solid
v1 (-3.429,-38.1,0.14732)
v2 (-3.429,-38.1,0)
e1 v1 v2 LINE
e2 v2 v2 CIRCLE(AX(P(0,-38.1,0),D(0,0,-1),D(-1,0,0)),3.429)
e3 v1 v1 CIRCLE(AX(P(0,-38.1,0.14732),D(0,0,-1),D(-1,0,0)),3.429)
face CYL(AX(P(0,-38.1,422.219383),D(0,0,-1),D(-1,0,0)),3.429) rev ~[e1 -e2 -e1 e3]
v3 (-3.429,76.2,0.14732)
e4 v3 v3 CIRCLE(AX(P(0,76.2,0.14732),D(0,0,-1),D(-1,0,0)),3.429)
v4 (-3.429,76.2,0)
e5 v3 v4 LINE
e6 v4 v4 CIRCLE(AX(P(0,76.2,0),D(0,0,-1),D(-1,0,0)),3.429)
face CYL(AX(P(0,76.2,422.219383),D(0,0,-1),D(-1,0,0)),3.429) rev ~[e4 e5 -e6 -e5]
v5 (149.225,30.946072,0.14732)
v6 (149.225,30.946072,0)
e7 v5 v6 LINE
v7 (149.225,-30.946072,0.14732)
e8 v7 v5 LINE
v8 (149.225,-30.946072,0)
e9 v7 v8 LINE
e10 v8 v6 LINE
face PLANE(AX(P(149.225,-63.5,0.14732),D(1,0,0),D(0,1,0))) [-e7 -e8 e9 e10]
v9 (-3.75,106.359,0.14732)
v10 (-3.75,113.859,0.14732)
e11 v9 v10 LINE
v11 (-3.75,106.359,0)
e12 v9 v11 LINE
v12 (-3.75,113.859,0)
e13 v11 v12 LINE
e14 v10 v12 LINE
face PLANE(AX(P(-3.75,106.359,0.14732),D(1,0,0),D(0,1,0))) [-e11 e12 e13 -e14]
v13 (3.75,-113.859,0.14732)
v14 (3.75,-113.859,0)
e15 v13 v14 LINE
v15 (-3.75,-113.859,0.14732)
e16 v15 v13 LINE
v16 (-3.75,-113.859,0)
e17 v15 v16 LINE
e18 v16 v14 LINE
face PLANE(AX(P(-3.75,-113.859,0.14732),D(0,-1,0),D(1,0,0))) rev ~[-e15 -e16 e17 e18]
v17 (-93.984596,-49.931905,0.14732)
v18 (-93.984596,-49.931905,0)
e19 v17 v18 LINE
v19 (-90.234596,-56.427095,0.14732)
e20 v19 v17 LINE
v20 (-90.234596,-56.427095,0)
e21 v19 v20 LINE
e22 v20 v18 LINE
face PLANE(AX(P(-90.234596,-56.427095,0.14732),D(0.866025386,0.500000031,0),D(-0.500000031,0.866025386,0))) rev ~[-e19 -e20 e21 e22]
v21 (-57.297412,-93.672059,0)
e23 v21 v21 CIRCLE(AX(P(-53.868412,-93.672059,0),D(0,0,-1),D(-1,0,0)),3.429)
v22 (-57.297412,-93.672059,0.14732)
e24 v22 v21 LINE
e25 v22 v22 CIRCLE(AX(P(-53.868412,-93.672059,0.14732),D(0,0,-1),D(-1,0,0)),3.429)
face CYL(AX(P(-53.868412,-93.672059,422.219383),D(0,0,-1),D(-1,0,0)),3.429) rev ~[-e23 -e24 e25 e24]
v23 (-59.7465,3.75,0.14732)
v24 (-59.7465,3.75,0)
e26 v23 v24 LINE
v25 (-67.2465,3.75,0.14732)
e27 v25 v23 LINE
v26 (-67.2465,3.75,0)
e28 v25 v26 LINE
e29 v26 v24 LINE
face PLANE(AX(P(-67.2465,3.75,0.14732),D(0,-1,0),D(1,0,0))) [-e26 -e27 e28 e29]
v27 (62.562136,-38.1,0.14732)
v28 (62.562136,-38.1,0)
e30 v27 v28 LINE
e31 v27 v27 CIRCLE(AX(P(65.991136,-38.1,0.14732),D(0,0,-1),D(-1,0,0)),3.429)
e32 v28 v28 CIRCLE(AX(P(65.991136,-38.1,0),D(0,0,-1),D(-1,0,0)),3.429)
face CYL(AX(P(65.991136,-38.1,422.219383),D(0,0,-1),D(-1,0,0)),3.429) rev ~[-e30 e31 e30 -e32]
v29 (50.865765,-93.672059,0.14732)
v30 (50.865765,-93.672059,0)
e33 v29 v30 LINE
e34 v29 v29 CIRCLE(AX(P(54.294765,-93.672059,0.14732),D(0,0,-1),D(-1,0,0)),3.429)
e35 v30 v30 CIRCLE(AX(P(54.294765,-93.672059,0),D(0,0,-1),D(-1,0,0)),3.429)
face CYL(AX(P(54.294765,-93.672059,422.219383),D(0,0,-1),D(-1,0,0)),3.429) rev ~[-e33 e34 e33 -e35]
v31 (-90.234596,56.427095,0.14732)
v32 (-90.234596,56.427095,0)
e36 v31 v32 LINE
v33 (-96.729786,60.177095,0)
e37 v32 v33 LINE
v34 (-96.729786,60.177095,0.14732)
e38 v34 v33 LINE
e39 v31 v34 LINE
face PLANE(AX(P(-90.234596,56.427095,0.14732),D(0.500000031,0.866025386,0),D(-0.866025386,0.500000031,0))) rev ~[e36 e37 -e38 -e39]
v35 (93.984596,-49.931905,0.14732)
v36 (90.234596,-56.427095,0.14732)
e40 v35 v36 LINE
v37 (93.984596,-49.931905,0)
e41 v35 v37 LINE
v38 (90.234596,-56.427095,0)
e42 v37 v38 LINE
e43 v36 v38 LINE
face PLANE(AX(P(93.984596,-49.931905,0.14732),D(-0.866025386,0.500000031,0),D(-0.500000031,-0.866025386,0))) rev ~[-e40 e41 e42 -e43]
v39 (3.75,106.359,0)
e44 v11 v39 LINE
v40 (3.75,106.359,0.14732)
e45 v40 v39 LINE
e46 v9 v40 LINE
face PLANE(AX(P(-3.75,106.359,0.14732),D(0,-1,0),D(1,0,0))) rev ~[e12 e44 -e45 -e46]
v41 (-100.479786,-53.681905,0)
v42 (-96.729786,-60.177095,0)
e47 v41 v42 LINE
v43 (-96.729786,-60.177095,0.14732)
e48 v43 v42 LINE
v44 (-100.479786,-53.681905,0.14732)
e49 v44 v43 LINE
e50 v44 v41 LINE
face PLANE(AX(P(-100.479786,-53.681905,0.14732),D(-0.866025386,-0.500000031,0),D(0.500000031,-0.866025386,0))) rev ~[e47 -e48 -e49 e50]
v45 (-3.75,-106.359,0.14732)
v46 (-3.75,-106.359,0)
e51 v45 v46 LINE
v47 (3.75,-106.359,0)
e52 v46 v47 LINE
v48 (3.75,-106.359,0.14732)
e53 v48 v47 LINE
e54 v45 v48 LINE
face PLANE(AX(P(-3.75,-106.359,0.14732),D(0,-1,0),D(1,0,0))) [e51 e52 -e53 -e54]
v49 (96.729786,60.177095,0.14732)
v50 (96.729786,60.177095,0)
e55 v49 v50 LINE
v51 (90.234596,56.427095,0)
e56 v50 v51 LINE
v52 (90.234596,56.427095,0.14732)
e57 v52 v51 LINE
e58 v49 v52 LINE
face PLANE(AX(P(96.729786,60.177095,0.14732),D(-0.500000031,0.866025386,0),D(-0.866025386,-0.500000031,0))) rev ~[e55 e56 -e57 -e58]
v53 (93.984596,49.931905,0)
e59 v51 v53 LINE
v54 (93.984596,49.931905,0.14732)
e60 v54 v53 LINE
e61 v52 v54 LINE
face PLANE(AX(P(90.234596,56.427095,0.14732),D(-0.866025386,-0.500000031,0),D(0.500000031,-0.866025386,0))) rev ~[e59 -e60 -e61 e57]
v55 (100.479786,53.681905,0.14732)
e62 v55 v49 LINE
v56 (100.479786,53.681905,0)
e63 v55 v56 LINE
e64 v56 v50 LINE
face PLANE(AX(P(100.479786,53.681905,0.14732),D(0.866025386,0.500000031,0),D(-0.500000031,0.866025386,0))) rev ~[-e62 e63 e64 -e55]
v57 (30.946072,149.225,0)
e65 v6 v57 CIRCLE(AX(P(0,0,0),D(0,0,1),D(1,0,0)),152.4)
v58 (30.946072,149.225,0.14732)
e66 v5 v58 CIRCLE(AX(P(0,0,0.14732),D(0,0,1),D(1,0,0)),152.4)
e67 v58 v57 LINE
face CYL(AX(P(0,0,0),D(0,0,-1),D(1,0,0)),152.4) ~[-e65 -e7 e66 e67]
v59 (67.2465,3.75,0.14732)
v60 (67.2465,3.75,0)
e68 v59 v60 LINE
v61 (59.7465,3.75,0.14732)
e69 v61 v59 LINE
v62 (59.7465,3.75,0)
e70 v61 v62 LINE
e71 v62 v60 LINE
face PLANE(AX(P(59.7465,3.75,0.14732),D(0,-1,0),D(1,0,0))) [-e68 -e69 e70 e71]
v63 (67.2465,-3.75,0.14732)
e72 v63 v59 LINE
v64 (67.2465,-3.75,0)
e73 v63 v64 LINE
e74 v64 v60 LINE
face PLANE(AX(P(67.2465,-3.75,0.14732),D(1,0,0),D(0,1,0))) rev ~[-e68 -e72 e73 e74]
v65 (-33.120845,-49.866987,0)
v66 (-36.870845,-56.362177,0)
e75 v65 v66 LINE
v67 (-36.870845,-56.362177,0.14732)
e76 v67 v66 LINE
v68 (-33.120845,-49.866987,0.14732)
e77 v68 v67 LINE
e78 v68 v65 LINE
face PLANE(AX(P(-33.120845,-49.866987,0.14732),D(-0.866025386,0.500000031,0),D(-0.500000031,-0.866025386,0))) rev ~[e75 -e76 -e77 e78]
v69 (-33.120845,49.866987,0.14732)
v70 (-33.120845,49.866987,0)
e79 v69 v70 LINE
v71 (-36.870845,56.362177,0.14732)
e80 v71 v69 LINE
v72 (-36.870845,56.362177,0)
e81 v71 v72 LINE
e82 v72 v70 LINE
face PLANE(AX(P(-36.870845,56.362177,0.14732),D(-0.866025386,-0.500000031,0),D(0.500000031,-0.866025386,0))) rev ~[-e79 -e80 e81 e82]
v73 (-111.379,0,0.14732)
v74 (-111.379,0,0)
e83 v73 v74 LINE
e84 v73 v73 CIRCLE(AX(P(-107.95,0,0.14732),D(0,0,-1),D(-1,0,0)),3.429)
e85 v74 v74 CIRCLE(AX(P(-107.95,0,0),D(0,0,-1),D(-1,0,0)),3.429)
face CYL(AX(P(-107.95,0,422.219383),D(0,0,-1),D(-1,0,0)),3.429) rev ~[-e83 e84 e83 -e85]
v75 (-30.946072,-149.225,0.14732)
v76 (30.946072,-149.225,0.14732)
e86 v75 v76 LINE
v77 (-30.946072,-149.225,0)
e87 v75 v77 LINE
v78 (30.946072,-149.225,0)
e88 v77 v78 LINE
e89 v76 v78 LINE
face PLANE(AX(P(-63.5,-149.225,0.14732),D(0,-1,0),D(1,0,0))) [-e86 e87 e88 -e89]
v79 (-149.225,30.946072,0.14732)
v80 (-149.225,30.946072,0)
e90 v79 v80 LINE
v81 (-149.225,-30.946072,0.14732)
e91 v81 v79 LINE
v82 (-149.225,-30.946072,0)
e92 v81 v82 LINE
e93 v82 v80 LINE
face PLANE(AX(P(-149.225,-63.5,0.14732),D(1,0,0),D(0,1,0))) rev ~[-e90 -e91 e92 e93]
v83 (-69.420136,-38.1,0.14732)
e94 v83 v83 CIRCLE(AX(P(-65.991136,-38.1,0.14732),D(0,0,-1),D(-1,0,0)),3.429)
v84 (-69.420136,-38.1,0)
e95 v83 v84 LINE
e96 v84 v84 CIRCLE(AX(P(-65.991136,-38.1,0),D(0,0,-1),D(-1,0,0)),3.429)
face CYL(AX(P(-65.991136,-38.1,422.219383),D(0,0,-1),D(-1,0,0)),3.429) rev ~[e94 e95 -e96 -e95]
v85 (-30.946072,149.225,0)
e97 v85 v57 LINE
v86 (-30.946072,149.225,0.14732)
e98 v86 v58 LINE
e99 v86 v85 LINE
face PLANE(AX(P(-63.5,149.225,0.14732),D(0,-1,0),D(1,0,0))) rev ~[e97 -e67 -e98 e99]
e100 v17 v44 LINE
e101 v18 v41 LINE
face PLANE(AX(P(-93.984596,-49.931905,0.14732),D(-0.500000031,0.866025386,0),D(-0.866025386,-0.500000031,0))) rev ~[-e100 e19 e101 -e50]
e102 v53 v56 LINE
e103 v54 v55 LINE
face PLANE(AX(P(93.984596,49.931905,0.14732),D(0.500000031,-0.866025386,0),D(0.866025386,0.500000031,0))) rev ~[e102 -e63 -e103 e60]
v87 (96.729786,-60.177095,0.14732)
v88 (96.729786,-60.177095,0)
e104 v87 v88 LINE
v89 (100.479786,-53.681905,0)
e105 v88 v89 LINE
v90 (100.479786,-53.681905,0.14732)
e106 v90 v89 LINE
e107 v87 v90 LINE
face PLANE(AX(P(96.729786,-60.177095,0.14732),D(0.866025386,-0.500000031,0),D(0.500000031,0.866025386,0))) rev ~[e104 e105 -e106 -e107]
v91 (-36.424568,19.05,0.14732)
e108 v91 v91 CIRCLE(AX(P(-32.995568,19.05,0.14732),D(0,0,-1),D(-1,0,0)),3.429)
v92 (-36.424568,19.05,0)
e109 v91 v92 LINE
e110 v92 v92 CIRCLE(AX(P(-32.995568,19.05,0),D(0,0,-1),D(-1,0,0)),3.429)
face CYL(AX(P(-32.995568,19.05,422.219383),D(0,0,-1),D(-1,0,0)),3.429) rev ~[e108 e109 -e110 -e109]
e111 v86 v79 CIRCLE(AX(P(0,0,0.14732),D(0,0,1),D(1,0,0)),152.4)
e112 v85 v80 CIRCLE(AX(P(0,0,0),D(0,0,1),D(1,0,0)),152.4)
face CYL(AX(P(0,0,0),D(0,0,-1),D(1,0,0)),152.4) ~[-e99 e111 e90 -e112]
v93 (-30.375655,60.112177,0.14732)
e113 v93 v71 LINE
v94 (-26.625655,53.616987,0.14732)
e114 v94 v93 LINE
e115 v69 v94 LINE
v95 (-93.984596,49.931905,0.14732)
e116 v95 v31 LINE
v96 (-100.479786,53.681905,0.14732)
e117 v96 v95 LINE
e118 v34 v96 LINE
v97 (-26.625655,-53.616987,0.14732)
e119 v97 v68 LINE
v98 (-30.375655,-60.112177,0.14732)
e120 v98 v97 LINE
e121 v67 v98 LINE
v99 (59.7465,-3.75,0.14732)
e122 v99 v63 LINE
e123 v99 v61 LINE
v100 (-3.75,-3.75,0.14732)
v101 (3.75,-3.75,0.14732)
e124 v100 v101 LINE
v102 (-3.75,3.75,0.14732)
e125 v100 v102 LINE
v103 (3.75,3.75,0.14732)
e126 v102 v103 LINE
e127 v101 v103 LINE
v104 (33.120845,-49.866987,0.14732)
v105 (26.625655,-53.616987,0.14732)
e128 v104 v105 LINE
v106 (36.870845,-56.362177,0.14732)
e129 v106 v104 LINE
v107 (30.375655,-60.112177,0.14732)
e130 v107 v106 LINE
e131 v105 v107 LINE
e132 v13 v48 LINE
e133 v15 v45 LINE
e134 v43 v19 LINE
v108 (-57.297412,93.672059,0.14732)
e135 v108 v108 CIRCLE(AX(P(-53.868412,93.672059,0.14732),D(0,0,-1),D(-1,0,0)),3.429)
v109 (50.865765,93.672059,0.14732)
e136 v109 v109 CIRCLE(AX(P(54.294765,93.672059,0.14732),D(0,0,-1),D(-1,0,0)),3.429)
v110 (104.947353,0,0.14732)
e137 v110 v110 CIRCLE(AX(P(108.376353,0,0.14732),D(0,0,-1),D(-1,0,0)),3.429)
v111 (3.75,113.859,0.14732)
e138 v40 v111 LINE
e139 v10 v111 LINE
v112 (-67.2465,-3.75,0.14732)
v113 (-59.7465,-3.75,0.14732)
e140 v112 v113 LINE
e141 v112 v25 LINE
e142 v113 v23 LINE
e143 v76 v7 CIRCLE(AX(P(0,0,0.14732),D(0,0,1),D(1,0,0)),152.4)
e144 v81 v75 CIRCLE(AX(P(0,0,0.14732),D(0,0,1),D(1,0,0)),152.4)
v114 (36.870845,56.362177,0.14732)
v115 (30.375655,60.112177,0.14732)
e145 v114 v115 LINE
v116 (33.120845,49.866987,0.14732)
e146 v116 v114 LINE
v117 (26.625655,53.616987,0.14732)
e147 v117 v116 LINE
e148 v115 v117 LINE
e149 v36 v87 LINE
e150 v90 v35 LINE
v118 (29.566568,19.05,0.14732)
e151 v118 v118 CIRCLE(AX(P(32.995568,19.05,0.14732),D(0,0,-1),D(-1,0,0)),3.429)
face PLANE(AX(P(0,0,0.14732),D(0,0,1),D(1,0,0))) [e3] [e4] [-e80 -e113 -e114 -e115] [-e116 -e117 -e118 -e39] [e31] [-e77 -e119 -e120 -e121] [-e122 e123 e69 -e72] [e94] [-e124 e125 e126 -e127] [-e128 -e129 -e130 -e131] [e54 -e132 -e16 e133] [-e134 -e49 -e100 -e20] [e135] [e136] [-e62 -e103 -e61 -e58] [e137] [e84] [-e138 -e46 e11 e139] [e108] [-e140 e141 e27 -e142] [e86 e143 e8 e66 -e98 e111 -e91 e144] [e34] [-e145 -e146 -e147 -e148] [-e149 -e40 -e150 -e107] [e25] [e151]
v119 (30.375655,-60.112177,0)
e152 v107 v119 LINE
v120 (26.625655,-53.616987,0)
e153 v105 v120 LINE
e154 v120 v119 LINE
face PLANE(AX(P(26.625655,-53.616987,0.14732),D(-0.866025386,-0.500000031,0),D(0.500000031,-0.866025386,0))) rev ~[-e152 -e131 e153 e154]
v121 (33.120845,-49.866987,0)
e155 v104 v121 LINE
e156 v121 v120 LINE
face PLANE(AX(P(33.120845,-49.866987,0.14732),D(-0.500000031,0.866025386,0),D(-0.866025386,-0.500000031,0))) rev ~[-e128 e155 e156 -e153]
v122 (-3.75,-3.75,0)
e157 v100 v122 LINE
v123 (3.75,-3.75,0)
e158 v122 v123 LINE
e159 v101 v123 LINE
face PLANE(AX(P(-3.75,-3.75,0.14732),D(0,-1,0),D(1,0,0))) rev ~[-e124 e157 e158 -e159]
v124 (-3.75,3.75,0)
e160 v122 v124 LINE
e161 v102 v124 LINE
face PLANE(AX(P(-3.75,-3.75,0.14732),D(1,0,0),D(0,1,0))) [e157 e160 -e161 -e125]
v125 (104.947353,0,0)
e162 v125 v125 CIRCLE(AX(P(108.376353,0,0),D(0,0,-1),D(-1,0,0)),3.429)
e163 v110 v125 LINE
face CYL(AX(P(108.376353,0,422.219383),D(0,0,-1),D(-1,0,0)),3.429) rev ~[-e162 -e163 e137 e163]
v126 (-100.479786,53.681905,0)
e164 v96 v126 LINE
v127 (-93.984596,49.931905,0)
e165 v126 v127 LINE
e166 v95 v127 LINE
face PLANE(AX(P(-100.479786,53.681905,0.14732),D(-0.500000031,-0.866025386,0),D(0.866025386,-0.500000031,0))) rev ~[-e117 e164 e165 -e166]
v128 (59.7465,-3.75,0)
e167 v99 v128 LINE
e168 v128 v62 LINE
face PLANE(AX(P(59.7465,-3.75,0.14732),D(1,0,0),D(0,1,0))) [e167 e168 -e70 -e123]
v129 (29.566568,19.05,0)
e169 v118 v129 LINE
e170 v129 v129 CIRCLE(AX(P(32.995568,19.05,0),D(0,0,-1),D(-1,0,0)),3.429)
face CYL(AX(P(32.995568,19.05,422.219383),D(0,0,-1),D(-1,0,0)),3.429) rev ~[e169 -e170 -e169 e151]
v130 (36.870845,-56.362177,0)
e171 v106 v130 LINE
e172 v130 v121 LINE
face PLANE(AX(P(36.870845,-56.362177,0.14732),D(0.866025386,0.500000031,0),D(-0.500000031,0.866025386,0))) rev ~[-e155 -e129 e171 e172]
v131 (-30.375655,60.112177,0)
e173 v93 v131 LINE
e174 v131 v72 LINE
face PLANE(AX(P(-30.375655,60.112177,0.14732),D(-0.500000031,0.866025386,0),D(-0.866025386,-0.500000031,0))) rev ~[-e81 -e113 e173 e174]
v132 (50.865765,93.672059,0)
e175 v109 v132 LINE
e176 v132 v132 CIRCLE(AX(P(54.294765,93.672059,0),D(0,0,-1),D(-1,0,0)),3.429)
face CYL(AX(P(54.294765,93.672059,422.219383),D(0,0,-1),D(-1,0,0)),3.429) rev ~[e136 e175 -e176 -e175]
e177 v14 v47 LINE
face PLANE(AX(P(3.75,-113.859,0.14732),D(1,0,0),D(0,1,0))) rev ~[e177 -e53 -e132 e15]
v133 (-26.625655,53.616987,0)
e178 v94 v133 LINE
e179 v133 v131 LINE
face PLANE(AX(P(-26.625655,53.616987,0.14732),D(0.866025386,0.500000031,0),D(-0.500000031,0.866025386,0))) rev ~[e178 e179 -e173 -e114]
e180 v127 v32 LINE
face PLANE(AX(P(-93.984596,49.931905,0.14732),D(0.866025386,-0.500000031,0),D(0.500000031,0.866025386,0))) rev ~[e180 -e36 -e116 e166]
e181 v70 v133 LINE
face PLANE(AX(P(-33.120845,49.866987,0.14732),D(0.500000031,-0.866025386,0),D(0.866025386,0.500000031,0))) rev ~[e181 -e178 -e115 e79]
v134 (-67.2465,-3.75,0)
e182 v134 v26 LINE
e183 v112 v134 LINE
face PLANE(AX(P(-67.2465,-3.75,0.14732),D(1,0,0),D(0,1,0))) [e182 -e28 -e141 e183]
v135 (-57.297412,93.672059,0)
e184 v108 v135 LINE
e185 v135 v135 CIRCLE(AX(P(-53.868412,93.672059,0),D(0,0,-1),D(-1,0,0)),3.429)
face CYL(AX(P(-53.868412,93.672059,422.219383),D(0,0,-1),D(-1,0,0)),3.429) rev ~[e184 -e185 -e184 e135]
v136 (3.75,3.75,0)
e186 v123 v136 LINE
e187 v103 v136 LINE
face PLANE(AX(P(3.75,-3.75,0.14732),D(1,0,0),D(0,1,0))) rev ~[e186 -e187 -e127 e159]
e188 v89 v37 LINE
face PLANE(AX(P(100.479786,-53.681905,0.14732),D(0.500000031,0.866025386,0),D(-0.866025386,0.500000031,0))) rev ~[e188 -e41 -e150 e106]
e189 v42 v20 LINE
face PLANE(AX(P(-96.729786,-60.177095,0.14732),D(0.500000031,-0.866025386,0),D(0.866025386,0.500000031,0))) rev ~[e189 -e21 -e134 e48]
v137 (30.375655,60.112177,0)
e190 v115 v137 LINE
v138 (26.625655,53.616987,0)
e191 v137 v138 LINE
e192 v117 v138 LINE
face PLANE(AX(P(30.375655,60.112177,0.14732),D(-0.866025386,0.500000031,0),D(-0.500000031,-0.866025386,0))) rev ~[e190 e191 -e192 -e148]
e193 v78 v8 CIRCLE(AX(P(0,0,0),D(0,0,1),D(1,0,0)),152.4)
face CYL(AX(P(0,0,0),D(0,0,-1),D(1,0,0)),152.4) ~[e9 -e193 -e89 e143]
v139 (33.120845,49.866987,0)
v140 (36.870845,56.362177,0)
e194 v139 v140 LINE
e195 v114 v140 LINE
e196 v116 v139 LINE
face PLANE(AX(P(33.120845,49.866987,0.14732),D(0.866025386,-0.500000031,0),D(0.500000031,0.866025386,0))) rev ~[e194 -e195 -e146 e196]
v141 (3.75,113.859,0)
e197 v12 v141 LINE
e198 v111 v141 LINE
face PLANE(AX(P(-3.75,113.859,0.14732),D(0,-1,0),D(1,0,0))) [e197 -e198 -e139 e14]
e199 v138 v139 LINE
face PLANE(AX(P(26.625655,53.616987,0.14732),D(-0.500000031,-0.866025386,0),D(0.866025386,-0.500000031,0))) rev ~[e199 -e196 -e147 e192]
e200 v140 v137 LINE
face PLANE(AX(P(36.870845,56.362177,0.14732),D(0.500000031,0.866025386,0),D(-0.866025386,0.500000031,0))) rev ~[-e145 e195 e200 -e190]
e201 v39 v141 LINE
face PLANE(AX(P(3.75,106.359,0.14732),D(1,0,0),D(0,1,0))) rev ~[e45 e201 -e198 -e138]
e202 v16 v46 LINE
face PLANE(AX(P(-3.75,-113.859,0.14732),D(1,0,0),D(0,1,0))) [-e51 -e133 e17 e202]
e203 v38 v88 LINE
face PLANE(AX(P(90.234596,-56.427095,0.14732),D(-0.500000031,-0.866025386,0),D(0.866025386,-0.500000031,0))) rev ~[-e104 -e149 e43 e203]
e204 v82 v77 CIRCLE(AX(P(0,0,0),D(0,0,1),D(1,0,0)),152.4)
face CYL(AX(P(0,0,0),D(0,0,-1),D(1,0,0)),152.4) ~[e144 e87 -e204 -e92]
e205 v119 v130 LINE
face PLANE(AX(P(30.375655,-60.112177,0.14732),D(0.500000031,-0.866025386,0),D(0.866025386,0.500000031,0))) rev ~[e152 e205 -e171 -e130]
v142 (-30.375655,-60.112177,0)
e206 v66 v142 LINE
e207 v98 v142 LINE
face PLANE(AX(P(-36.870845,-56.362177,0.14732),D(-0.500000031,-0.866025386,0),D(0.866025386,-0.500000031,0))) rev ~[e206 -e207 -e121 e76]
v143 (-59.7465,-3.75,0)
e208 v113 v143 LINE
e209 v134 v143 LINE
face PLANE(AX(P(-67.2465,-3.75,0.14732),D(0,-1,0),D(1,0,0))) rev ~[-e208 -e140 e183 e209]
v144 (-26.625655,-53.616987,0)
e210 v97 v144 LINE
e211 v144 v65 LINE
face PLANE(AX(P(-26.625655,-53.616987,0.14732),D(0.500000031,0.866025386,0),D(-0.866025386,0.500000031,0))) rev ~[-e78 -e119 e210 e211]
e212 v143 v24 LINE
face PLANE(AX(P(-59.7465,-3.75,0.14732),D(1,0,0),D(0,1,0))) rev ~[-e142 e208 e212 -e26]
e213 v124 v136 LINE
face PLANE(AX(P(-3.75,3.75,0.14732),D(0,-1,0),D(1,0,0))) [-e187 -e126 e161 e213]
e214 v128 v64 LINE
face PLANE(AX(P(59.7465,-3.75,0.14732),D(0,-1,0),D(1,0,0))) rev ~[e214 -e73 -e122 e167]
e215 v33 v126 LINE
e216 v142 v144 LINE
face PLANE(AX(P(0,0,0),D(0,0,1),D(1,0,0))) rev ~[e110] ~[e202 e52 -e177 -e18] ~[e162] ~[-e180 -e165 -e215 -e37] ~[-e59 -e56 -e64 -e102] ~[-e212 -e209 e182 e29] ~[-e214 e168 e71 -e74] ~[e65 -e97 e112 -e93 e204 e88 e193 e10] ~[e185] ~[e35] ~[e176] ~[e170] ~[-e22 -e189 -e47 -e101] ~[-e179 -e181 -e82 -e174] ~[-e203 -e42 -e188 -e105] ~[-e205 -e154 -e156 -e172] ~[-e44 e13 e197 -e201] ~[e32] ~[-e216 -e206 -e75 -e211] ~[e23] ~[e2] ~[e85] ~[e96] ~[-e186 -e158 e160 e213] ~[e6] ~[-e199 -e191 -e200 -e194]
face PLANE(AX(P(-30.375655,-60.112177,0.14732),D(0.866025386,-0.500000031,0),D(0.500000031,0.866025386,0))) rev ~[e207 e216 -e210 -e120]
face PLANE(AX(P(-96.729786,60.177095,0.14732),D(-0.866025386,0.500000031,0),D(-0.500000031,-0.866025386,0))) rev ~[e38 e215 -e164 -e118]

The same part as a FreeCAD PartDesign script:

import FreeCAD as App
import Part
import Sketcher
from FreeCAD import Vector
Q = App.Units.Quantity

doc = App.newDocument("Part")
body = doc.addObject("PartDesign::Body", "Body")

# Sketch on XY plane
sketch1 = body.newObject("Sketcher::SketchObject", "Sketch")
sketch1.AttachmentSupport = (doc.getObject("XY_Plane"), [""])
sketch1.MapMode = "FlatFace"
sketch1.addGeometry(Part.Circle(Vector(0, 0, 0), Vector(0, 0, 1), 152.4), False)
sketch1.addConstraint(Sketcher.Constraint("Coincident", 0, 3, -1, 1))
sketch1.addConstraint(Sketcher.Constraint("Diameter", 0, Q("12 in")))
pad1 = body.newObject("PartDesign::Pad", "Pad")
pad1.Profile = sketch1
pad1.Length = Q("0.0058 in")

# Sketch on XY plane
sketch2 = body.newObject("Sketcher::SketchObject", "Sketch001")
sketch2.AttachmentSupport = (doc.getObject("XY_Plane"), [""])
sketch2.MapMode = "FlatFace"
sketch2.AttachmentOffset = App.Placement(Vector(0, 0, 0.0058 * 25.4), App.Rotation())
sketch2.addGeometry(Part.LineSegment(Vector(-161.925, 63.5, 0), Vector(-161.925, -63.5, 0)), False)
sketch2.addGeometry(Part.LineSegment(Vector(-161.925, -63.5, 0), Vector(-149.225, -63.5, 0)), False)
sketch2.addGeometry(Part.LineSegment(Vector(-149.225, -63.5, 0), Vector(-149.225, 63.5, 0)), False)
sketch2.addGeometry(Part.LineSegment(Vector(-149.225, 63.5, 0), Vector(-161.925, 63.5, 0)), False)
sketch2.addGeometry(Part.LineSegment(Vector(-63.5, -149.225, 0), Vector(-63.5, -161.925, 0)), False)
sketch2.addGeometry(Part.LineSegment(Vector(-63.5, -161.925, 0), Vector(63.5, -161.925, 0)), False)
sketch2.addGeometry(Part.LineSegment(Vector(63.5, -161.925, 0), Vector(63.5, -149.225, 0)), False)
sketch2.addGeometry(Part.LineSegment(Vector(63.5, -149.225, 0), Vector(-63.5, -149.225, 0)), False)
sketch2.addGeometry(Part.LineSegment(Vector(-63.5, 161.925, 0), Vector(-63.5, 149.225, 0)), False)
sketch2.addGeometry(Part.LineSegment(Vector(-63.5, 149.225, 0), Vector(63.5, 149.225, 0)), False)
sketch2.addGeometry(Part.LineSegment(Vector(63.5, 149.225, 0), Vector(63.5, 161.925, 0)), False)
sketch2.addGeometry(Part.LineSegment(Vector(63.5, 161.925, 0), Vector(-63.5, 161.925, 0)), False)
sketch2.addGeometry(Part.LineSegment(Vector(149.225, 63.5, 0), Vector(149.225, -63.5, 0)), False)
sketch2.addGeometry(Part.LineSegment(Vector(149.225, -63.5, 0), Vector(161.925, -63.5, 0)), False)
sketch2.addGeometry(Part.LineSegment(Vector(161.925, -63.5, 0), Vector(161.925, 63.5, 0)), False)
sketch2.addGeometry(Part.LineSegment(Vector(161.925, 63.5, 0), Vector(149.225, 63.5, 0)), False)
sketch2.addConstraint(Sketcher.Constraint("Coincident", 0, 2, 1, 1))
sketch2.addConstraint(Sketcher.Constraint("Coincident", 1, 2, 2, 1))
sketch2.addConstraint(Sketcher.Constraint("Coincident", 2, 2, 3, 1))
sketch2.addConstraint(Sketcher.Constraint("Coincident", 3, 2, 0, 1))
sketch2.addConstraint(Sketcher.Constraint("Coincident", 4, 2, 5, 1))
sketch2.addConstraint(Sketcher.Constraint("Coincident", 5, 2, 6, 1))
sketch2.addConstraint(Sketcher.Constraint("Coincident", 6, 2, 7, 1))
sketch2.addConstraint(Sketcher.Constraint("Coincident", 7, 2, 4, 1))
sketch2.addConstraint(Sketcher.Constraint("Coincident", 8, 2, 9, 1))
sketch2.addConstraint(Sketcher.Constraint("Coincident", 9, 2, 10, 1))
sketch2.addConstraint(Sketcher.Constraint("Coincident", 10, 2, 11, 1))
sketch2.addConstraint(Sketcher.Constraint("Coincident", 11, 2, 8, 1))
sketch2.addConstraint(Sketcher.Constraint("Coincident", 12, 2, 13, 1))
sketch2.addConstraint(Sketcher.Constraint("Coincident", 13, 2, 14, 1))
sketch2.addConstraint(Sketcher.Constraint("Coincident", 14, 2, 15, 1))
sketch2.addConstraint(Sketcher.Constraint("Coincident", 15, 2, 12, 1))
sketch2.addConstraint(Sketcher.Constraint("Vertical", 0))
sketch2.addConstraint(Sketcher.Constraint("Horizontal", 1))
sketch2.addConstraint(Sketcher.Constraint("Vertical", 2))
sketch2.addConstraint(Sketcher.Constraint("Horizontal", 3))
sketch2.addConstraint(Sketcher.Constraint("Vertical", 4))
sketch2.addConstraint(Sketcher.Constraint("Horizontal", 5))
sketch2.addConstraint(Sketcher.Constraint("Vertical", 6))
sketch2.addConstraint(Sketcher.Constraint("Horizontal", 7))
sketch2.addConstraint(Sketcher.Constraint("Vertical", 8))
sketch2.addConstraint(Sketcher.Constraint("Horizontal", 9))
sketch2.addConstraint(Sketcher.Constraint("Vertical", 10))
sketch2.addConstraint(Sketcher.Constraint("Horizontal", 11))
sketch2.addConstraint(Sketcher.Constraint("Vertical", 12))
sketch2.addConstraint(Sketcher.Constraint("Horizontal", 13))
sketch2.addConstraint(Sketcher.Constraint("Vertical", 14))
sketch2.addConstraint(Sketcher.Constraint("Horizontal", 15))
sketch2.addConstraint(Sketcher.Constraint("Symmetric", 6, 2, 8, 2, -1, 1))
sketch2.addConstraint(Sketcher.Constraint("Symmetric", 4, 2, 10, 2, -1, 1))
sketch2.addConstraint(Sketcher.Constraint("Symmetric", 2, 2, 12, 2, -1, 1))
sketch2.addConstraint(Sketcher.Constraint("Symmetric", 0, 2, 14, 2, -1, 1))
sketch2.addConstraint(Sketcher.Constraint("Horizontal", 1, 2, 12, 2))
sketch2.addConstraint(Sketcher.Constraint("Vertical", 7, 2, 8, 2))
sketch2.addConstraint(Sketcher.Constraint("Equal", 11, 0))
sketch2.addConstraint(Sketcher.Constraint("Equal", 15, 4))
sketch2.addConstraint(Sketcher.Constraint("DistanceX", 5, 1, 5, 2, Q("5 in")))
sketch2.addConstraint(Sketcher.Constraint("DistanceX", 1, 1, 1, 2, Q("0.5 in")))
sketch2.addConstraint(Sketcher.Constraint("DistanceY", 7, 2, 8, 2, Q("11.75 in")))
sketch2.addConstraint(Sketcher.Constraint("DistanceX", 0, 2, -1, 1, Q("6.375 in")))
pocket1 = body.newObject("PartDesign::Pocket", "Pocket")
pocket1.Profile = sketch2
pocket1.Length = Q("1 in")

# Sketch on XY plane
sketch3 = body.newObject("Sketcher::SketchObject", "Sketch002")
sketch3.AttachmentSupport = (doc.getObject("XY_Plane"), [""])
sketch3.MapMode = "FlatFace"
sketch3.AttachmentOffset = App.Placement(Vector(0, 0, 0.0058 * 25.4), App.Rotation())
sketch3.addGeometry(Part.Circle(Vector(-53.868412, -93.672059, 0), Vector(0, 0, 1), 3.429), False)
sketch3.addGeometry(Part.Circle(Vector(54.294765, -93.672059, 0), Vector(0, 0, 1), 3.429), False)
sketch3.addGeometry(Part.Circle(Vector(65.991136, -38.1, 0), Vector(0, 0, 1), 3.429), False)
sketch3.addGeometry(Part.Circle(Vector(0, -38.1, 0), Vector(0, 0, 1), 3.429), False)
sketch3.addGeometry(Part.Circle(Vector(-65.991136, -38.1, 0), Vector(0, 0, 1), 3.429), False)
sketch3.addGeometry(Part.Circle(Vector(-107.95, 0, 0), Vector(0, 0, 1), 3.429), False)
sketch3.addGeometry(Part.Circle(Vector(-32.995568, 19.05, 0), Vector(0, 0, 1), 3.429), False)
sketch3.addGeometry(Part.Circle(Vector(32.995568, 19.05, 0), Vector(0, 0, 1), 3.429), False)
sketch3.addGeometry(Part.Circle(Vector(108.376353, 0, 0), Vector(0, 0, 1), 3.429), False)
sketch3.addGeometry(Part.Circle(Vector(0, 76.2, 0), Vector(0, 0, 1), 3.429), False)
sketch3.addGeometry(Part.Circle(Vector(54.294765, 93.672059, 0), Vector(0, 0, 1), 3.429), False)
sketch3.addGeometry(Part.Circle(Vector(-53.868412, 93.672059, 0), Vector(0, 0, 1), 3.429), False)
sketch3.addConstraint(Sketcher.Constraint("Equal", 0, 1))
sketch3.addConstraint(Sketcher.Constraint("Equal", 1, 2))
sketch3.addConstraint(Sketcher.Constraint("Equal", 2, 3))
sketch3.addConstraint(Sketcher.Constraint("Equal", 3, 4))
sketch3.addConstraint(Sketcher.Constraint("Equal", 4, 5))
sketch3.addConstraint(Sketcher.Constraint("Equal", 5, 6))
sketch3.addConstraint(Sketcher.Constraint("Equal", 6, 7))
sketch3.addConstraint(Sketcher.Constraint("Equal", 7, 8))
sketch3.addConstraint(Sketcher.Constraint("Equal", 8, 9))
sketch3.addConstraint(Sketcher.Constraint("Equal", 9, 10))
sketch3.addConstraint(Sketcher.Constraint("Equal", 10, 11))
sketch3.addConstraint(Sketcher.Constraint("Symmetric", 2, 3, 4, 3, -2))
sketch3.addConstraint(Sketcher.Constraint("Symmetric", 6, 3, 7, 3, -2))
sketch3.addConstraint(Sketcher.Constraint("Symmetric", 1, 3, 10, 3, -1))
sketch3.addConstraint(Sketcher.Constraint("Symmetric", 0, 3, 11, 3, -1))
sketch3.addConstraint(Sketcher.Constraint("PointOnObject", 3, 3, -2))
sketch3.addConstraint(Sketcher.Constraint("PointOnObject", 5, 3, -1))
sketch3.addConstraint(Sketcher.Constraint("PointOnObject", 8, 3, -1))
sketch3.addConstraint(Sketcher.Constraint("PointOnObject", 9, 3, -2))
sketch3.addConstraint(Sketcher.Constraint("Horizontal", 0, 3, 1, 3))
sketch3.addConstraint(Sketcher.Constraint("Horizontal", 2, 3, 3, 3))
sketch3.addConstraint(Sketcher.Constraint("Diameter", 0, Q("0.27 in")))
sketch3.addConstraint(Sketcher.Constraint("DistanceY", -1, 1, 9, 3, Q("3 in")))
sketch3.addConstraint(Sketcher.Constraint("DistanceY", 2, 3, -1, 1, Q("1.5 in")))
sketch3.addConstraint(Sketcher.Constraint("DistanceX", 5, 3, -1, 1, Q("4.25 in")))
sketch3.addConstraint(Sketcher.Constraint("DistanceY", -1, 1, 6, 3, Q("0.75 in")))
sketch3.addConstraint(Sketcher.Constraint("DistanceX", 4, 3, 1, 3, Q("120.285901 mm")))
sketch3.addConstraint(Sketcher.Constraint("DistanceY", 0, 3, -1, 1, Q("93.672059 mm")))
sketch3.addConstraint(Sketcher.Constraint("DistanceX", 1, 3, 2, 3, Q("11.696371 mm")))
sketch3.addConstraint(Sketcher.Constraint("DistanceX", 5, 3, 0, 3, Q("54.081588 mm")))
sketch3.addConstraint(Sketcher.Constraint("DistanceX", 5, 3, 6, 3, Q("74.954432 mm")))
sketch3.addConstraint(Sketcher.Constraint("DistanceX", 6, 3, 8, 3, Q("141.371921 mm")))
doc.recompute()
hole = body.newObject("PartDesign::Hole", "Hole")
hole.Profile = sketch3
hole.ThreadType = "None"
hole.Diameter = Q("0.27 in")
hole.DepthType = "ThroughAll"

# Sketch on XY plane
sketch4 = body.newObject("Sketcher::SketchObject", "Sketch003")
sketch4.AttachmentSupport = (doc.getObject("XY_Plane"), [""])
sketch4.MapMode = "FlatFace"
sketch4.AttachmentOffset = App.Placement(Vector(0, 0, 0.0058 * 25.4), App.Rotation())
sketch4.addGeometry(Part.LineSegment(Vector(-3.75, 3.75, 0), Vector(-3.75, -3.75, 0)), False)
sketch4.addGeometry(Part.LineSegment(Vector(-3.75, -3.75, 0), Vector(3.75, -3.75, 0)), False)
sketch4.addGeometry(Part.LineSegment(Vector(3.75, -3.75, 0), Vector(3.75, 3.75, 0)), False)
sketch4.addGeometry(Part.LineSegment(Vector(3.75, 3.75, 0), Vector(-3.75, 3.75, 0)), False)
sketch4.addGeometry(Part.LineSegment(Vector(-67.2465, 3.75, 0), Vector(-67.2465, -3.75, 0)), False)
sketch4.addGeometry(Part.LineSegment(Vector(-67.2465, -3.75, 0), Vector(-59.7465, -3.75, 0)), False)
sketch4.addGeometry(Part.LineSegment(Vector(-59.7465, -3.75, 0), Vector(-59.7465, 3.75, 0)), False)
sketch4.addGeometry(Part.LineSegment(Vector(-59.7465, 3.75, 0), Vector(-67.2465, 3.75, 0)), False)
sketch4.addGeometry(Part.LineSegment(Vector(-3.75, 113.859, 0), Vector(-3.75, 106.359, 0)), False)
sketch4.addGeometry(Part.LineSegment(Vector(-3.75, 106.359, 0), Vector(3.75, 106.359, 0)), False)
sketch4.addGeometry(Part.LineSegment(Vector(3.75, 106.359, 0), Vector(3.75, 113.859, 0)), False)
sketch4.addGeometry(Part.LineSegment(Vector(3.75, 113.859, 0), Vector(-3.75, 113.859, 0)), False)
sketch4.addGeometry(Part.LineSegment(Vector(-36.870845, -56.362177, 0), Vector(-30.375655, -60.112177, 0)), False)
sketch4.addGeometry(Part.LineSegment(Vector(-30.375655, -60.112177, 0), Vector(-26.625655, -53.616987, 0)), False)
sketch4.addGeometry(Part.LineSegment(Vector(-26.625655, -53.616987, 0), Vector(-33.120845, -49.866987, 0)), False)
sketch4.addGeometry(Part.LineSegment(Vector(-33.120845, -49.866987, 0), Vector(-36.870845, -56.362177, 0)), False)
sketch4.addGeometry(Part.LineSegment(Vector(30.375655, -60.112177, 0), Vector(36.870845, -56.362177, 0)), False)
sketch4.addGeometry(Part.LineSegment(Vector(36.870845, -56.362177, 0), Vector(33.120845, -49.866987, 0)), False)
sketch4.addGeometry(Part.LineSegment(Vector(33.120845, -49.866987, 0), Vector(26.625655, -53.616987, 0)), False)
sketch4.addGeometry(Part.LineSegment(Vector(26.625655, -53.616987, 0), Vector(30.375655, -60.112177, 0)), False)
sketch4.addGeometry(Part.LineSegment(Vector(59.7465, 3.75, 0), Vector(59.7465, -3.75, 0)), False)
sketch4.addGeometry(Part.LineSegment(Vector(59.7465, -3.75, 0), Vector(67.2465, -3.75, 0)), False)
sketch4.addGeometry(Part.LineSegment(Vector(67.2465, -3.75, 0), Vector(67.2465, 3.75, 0)), False)
sketch4.addGeometry(Part.LineSegment(Vector(67.2465, 3.75, 0), Vector(59.7465, 3.75, 0)), False)
sketch4.addGeometry(Part.LineSegment(Vector(36.870845, 56.362177, 0), Vector(30.375655, 60.112177, 0)), False)
sketch4.addGeometry(Part.LineSegment(Vector(30.375655, 60.112177, 0), Vector(26.625655, 53.616987, 0)), False)
sketch4.addGeometry(Part.LineSegment(Vector(26.625655, 53.616987, 0), Vector(33.120845, 49.866987, 0)), False)
sketch4.addGeometry(Part.LineSegment(Vector(33.120845, 49.866987, 0), Vector(36.870845, 56.362177, 0)), False)
sketch4.addGeometry(Part.LineSegment(Vector(-30.375655, 60.112177, 0), Vector(-36.870845, 56.362177, 0)), False)
sketch4.addGeometry(Part.LineSegment(Vector(-36.870845, 56.362177, 0), Vector(-33.120845, 49.866987, 0)), False)
sketch4.addGeometry(Part.LineSegment(Vector(-33.120845, 49.866987, 0), Vector(-26.625655, 53.616987, 0)), False)
sketch4.addGeometry(Part.LineSegment(Vector(-26.625655, 53.616987, 0), Vector(-30.375655, 60.112177, 0)), False)
sketch4.addGeometry(Part.LineSegment(Vector(-100.479786, 53.681905, 0), Vector(-93.984596, 49.931905, 0)), False)
sketch4.addGeometry(Part.LineSegment(Vector(-93.984596, 49.931905, 0), Vector(-90.234596, 56.427095, 0)), False)
sketch4.addGeometry(Part.LineSegment(Vector(-90.234596, 56.427095, 0), Vector(-96.729786, 60.177095, 0)), False)
sketch4.addGeometry(Part.LineSegment(Vector(-96.729786, 60.177095, 0), Vector(-100.479786, 53.681905, 0)), False)
sketch4.addGeometry(Part.LineSegment(Vector(-96.729786, -60.177095, 0), Vector(-90.234596, -56.427095, 0)), False)
sketch4.addGeometry(Part.LineSegment(Vector(-90.234596, -56.427095, 0), Vector(-93.984596, -49.931905, 0)), False)
sketch4.addGeometry(Part.LineSegment(Vector(-93.984596, -49.931905, 0), Vector(-100.479786, -53.681905, 0)), False)
sketch4.addGeometry(Part.LineSegment(Vector(-100.479786, -53.681905, 0), Vector(-96.729786, -60.177095, 0)), False)
sketch4.addGeometry(Part.LineSegment(Vector(-3.75, -106.359, 0), Vector(-3.75, -113.859, 0)), False)
sketch4.addGeometry(Part.LineSegment(Vector(-3.75, -113.859, 0), Vector(3.75, -113.859, 0)), False)
sketch4.addGeometry(Part.LineSegment(Vector(3.75, -113.859, 0), Vector(3.75, -106.359, 0)), False)
sketch4.addGeometry(Part.LineSegment(Vector(3.75, -106.359, 0), Vector(-3.75, -106.359, 0)), False)
sketch4.addGeometry(Part.LineSegment(Vector(100.479786, -53.681905, 0), Vector(93.984596, -49.931905, 0)), False)
sketch4.addGeometry(Part.LineSegment(Vector(93.984596, -49.931905, 0), Vector(90.234596, -56.427095, 0)), False)
sketch4.addGeometry(Part.LineSegment(Vector(90.234596, -56.427095, 0), Vector(96.729786, -60.177095, 0)), False)
sketch4.addGeometry(Part.LineSegment(Vector(96.729786, -60.177095, 0), Vector(100.479786, -53.681905, 0)), False)
sketch4.addGeometry(Part.LineSegment(Vector(96.729786, 60.177095, 0), Vector(90.234596, 56.427095, 0)), False)
sketch4.addGeometry(Part.LineSegment(Vector(90.234596, 56.427095, 0), Vector(93.984596, 49.931905, 0)), False)
sketch4.addGeometry(Part.LineSegment(Vector(93.984596, 49.931905, 0), Vector(100.479786, 53.681905, 0)), False)
sketch4.addGeometry(Part.LineSegment(Vector(100.479786, 53.681905, 0), Vector(96.729786, 60.177095, 0)), False)
sketch4.addConstraint(Sketcher.Constraint("Coincident", 0, 2, 1, 1))
sketch4.addConstraint(Sketcher.Constraint("Coincident", 1, 2, 2, 1))
sketch4.addConstraint(Sketcher.Constraint("Coincident", 2, 2, 3, 1))
sketch4.addConstraint(Sketcher.Constraint("Coincident", 3, 2, 0, 1))
sketch4.addConstraint(Sketcher.Constraint("Coincident", 4, 2, 5, 1))
sketch4.addConstraint(Sketcher.Constraint("Coincident", 5, 2, 6, 1))
sketch4.addConstraint(Sketcher.Constraint("Coincident", 6, 2, 7, 1))
sketch4.addConstraint(Sketcher.Constraint("Coincident", 7, 2, 4, 1))
sketch4.addConstraint(Sketcher.Constraint("Coincident", 8, 2, 9, 1))
sketch4.addConstraint(Sketcher.Constraint("Coincident", 9, 2, 10, 1))
sketch4.addConstraint(Sketcher.Constraint("Coincident", 10, 2, 11, 1))
sketch4.addConstraint(Sketcher.Constraint("Coincident", 11, 2, 8, 1))
sketch4.addConstraint(Sketcher.Constraint("Coincident", 12, 2, 13, 1))
sketch4.addConstraint(Sketcher.Constraint("Coincident", 13, 2, 14, 1))
sketch4.addConstraint(Sketcher.Constraint("Coincident", 14, 2, 15, 1))
sketch4.addConstraint(Sketcher.Constraint("Coincident", 15, 2, 12, 1))
sketch4.addConstraint(Sketcher.Constraint("Coincident", 16, 2, 17, 1))
sketch4.addConstraint(Sketcher.Constraint("Coincident", 17, 2, 18, 1))
sketch4.addConstraint(Sketcher.Constraint("Coincident", 18, 2, 19, 1))
sketch4.addConstraint(Sketcher.Constraint("Coincident", 19, 2, 16, 1))
sketch4.addConstraint(Sketcher.Constraint("Coincident", 20, 2, 21, 1))
sketch4.addConstraint(Sketcher.Constraint("Coincident", 21, 2, 22, 1))
sketch4.addConstraint(Sketcher.Constraint("Coincident", 22, 2, 23, 1))
sketch4.addConstraint(Sketcher.Constraint("Coincident", 23, 2, 20, 1))
sketch4.addConstraint(Sketcher.Constraint("Coincident", 24, 2, 25, 1))
sketch4.addConstraint(Sketcher.Constraint("Coincident", 25, 2, 26, 1))
sketch4.addConstraint(Sketcher.Constraint("Coincident", 26, 2, 27, 1))
sketch4.addConstraint(Sketcher.Constraint("Coincident", 27, 2, 24, 1))
sketch4.addConstraint(Sketcher.Constraint("Coincident", 28, 2, 29, 1))
sketch4.addConstraint(Sketcher.Constraint("Coincident", 29, 2, 30, 1))
sketch4.addConstraint(Sketcher.Constraint("Coincident", 30, 2, 31, 1))
sketch4.addConstraint(Sketcher.Constraint("Coincident", 31, 2, 28, 1))
sketch4.addConstraint(Sketcher.Constraint("Coincident", 32, 2, 33, 1))
sketch4.addConstraint(Sketcher.Constraint("Coincident", 33, 2, 34, 1))
sketch4.addConstraint(Sketcher.Constraint("Coincident", 34, 2, 35, 1))
sketch4.addConstraint(Sketcher.Constraint("Coincident", 35, 2, 32, 1))
sketch4.addConstraint(Sketcher.Constraint("Coincident", 36, 2, 37, 1))
sketch4.addConstraint(Sketcher.Constraint("Coincident", 37, 2, 38, 1))
sketch4.addConstraint(Sketcher.Constraint("Coincident", 38, 2, 39, 1))
sketch4.addConstraint(Sketcher.Constraint("Coincident", 39, 2, 36, 1))
sketch4.addConstraint(Sketcher.Constraint("Coincident", 40, 2, 41, 1))
sketch4.addConstraint(Sketcher.Constraint("Coincident", 41, 2, 42, 1))
sketch4.addConstraint(Sketcher.Constraint("Coincident", 42, 2, 43, 1))
sketch4.addConstraint(Sketcher.Constraint("Coincident", 43, 2, 40, 1))
sketch4.addConstraint(Sketcher.Constraint("Coincident", 44, 2, 45, 1))
sketch4.addConstraint(Sketcher.Constraint("Coincident", 45, 2, 46, 1))
sketch4.addConstraint(Sketcher.Constraint("Coincident", 46, 2, 47, 1))
sketch4.addConstraint(Sketcher.Constraint("Coincident", 47, 2, 44, 1))
sketch4.addConstraint(Sketcher.Constraint("Coincident", 48, 2, 49, 1))
sketch4.addConstraint(Sketcher.Constraint("Coincident", 49, 2, 50, 1))
sketch4.addConstraint(Sketcher.Constraint("Coincident", 50, 2, 51, 1))
sketch4.addConstraint(Sketcher.Constraint("Coincident", 51, 2, 48, 1))
sketch4.addConstraint(Sketcher.Constraint("Vertical", 0))
sketch4.addConstraint(Sketcher.Constraint("Horizontal", 1))
sketch4.addConstraint(Sketcher.Constraint("Vertical", 2))
sketch4.addConstraint(Sketcher.Constraint("Horizontal", 3))
sketch4.addConstraint(Sketcher.Constraint("Vertical", 4))
sketch4.addConstraint(Sketcher.Constraint("Horizontal", 5))
sketch4.addConstraint(Sketcher.Constraint("Vertical", 6))
sketch4.addConstraint(Sketcher.Constraint("Horizontal", 7))
sketch4.addConstraint(Sketcher.Constraint("Vertical", 8))
sketch4.addConstraint(Sketcher.Constraint("Horizontal", 9))
sketch4.addConstraint(Sketcher.Constraint("Vertical", 10))
sketch4.addConstraint(Sketcher.Constraint("Horizontal", 11))
sketch4.addConstraint(Sketcher.Constraint("Vertical", 20))
sketch4.addConstraint(Sketcher.Constraint("Horizontal", 21))
sketch4.addConstraint(Sketcher.Constraint("Vertical", 22))
sketch4.addConstraint(Sketcher.Constraint("Horizontal", 23))
sketch4.addConstraint(Sketcher.Constraint("Vertical", 40))
sketch4.addConstraint(Sketcher.Constraint("Horizontal", 41))
sketch4.addConstraint(Sketcher.Constraint("Vertical", 42))
sketch4.addConstraint(Sketcher.Constraint("Horizontal", 43))
sketch4.addConstraint(Sketcher.Constraint("Symmetric", 0, 2, 2, 2, -1, 1))
sketch4.addConstraint(Sketcher.Constraint("Symmetric", 6, 2, 20, 2, -1, 1))
sketch4.addConstraint(Sketcher.Constraint("Symmetric", 4, 2, 22, 2, -1, 1))
sketch4.addConstraint(Sketcher.Constraint("Symmetric", 12, 2, 24, 2, -1, 1))
sketch4.addConstraint(Sketcher.Constraint("Symmetric", 13, 2, 25, 2, -1, 1))
sketch4.addConstraint(Sketcher.Constraint("Symmetric", 14, 2, 26, 2, -1, 1))
sketch4.addConstraint(Sketcher.Constraint("Symmetric", 15, 2, 27, 2, -1, 1))
sketch4.addConstraint(Sketcher.Constraint("Symmetric", 16, 2, 28, 2, -1, 1))
sketch4.addConstraint(Sketcher.Constraint("Symmetric", 17, 2, 29, 2, -1, 1))
sketch4.addConstraint(Sketcher.Constraint("Symmetric", 18, 2, 30, 2, -1, 1))
sketch4.addConstraint(Sketcher.Constraint("Symmetric", 19, 2, 31, 2, -1, 1))
sketch4.addConstraint(Sketcher.Constraint("Symmetric", 10, 2, 40, 2, -1, 1))
sketch4.addConstraint(Sketcher.Constraint("Symmetric", 8, 2, 42, 2, -1, 1))
sketch4.addConstraint(Sketcher.Constraint("Symmetric", 32, 2, 44, 2, -1, 1))
sketch4.addConstraint(Sketcher.Constraint("Symmetric", 33, 2, 45, 2, -1, 1))
sketch4.addConstraint(Sketcher.Constraint("Symmetric", 34, 2, 46, 2, -1, 1))
sketch4.addConstraint(Sketcher.Constraint("Symmetric", 35, 2, 47, 2, -1, 1))
sketch4.addConstraint(Sketcher.Constraint("Symmetric", 36, 2, 48, 2, -1, 1))
sketch4.addConstraint(Sketcher.Constraint("Symmetric", 37, 2, 49, 2, -1, 1))
sketch4.addConstraint(Sketcher.Constraint("Symmetric", 38, 2, 50, 2, -1, 1))
sketch4.addConstraint(Sketcher.Constraint("Symmetric", 39, 2, 51, 2, -1, 1))
sketch4.addConstraint(Sketcher.Constraint("Symmetric", 15, 2, 16, 2, -2))
sketch4.addConstraint(Sketcher.Constraint("Symmetric", 14, 2, 17, 2, -2))
sketch4.addConstraint(Sketcher.Constraint("Symmetric", 13, 2, 18, 2, -2))
sketch4.addConstraint(Sketcher.Constraint("Symmetric", 12, 2, 19, 2, -2))
sketch4.addConstraint(Sketcher.Constraint("Symmetric", 37, 2, 44, 2, -2))
sketch4.addConstraint(Sketcher.Constraint("Symmetric", 36, 2, 45, 2, -2))
sketch4.addConstraint(Sketcher.Constraint("Symmetric", 39, 2, 46, 2, -2))
sketch4.addConstraint(Sketcher.Constraint("Symmetric", 38, 2, 47, 2, -2))
sketch4.addConstraint(Sketcher.Constraint("Perpendicular", 12, 13))
sketch4.addConstraint(Sketcher.Constraint("Perpendicular", 13, 14))
sketch4.addConstraint(Sketcher.Constraint("Perpendicular", 14, 15))
sketch4.addConstraint(Sketcher.Constraint("Perpendicular", 27, 32))
sketch4.addConstraint(Sketcher.Constraint("Perpendicular", 32, 33))
sketch4.addConstraint(Sketcher.Constraint("Perpendicular", 33, 34))
sketch4.addConstraint(Sketcher.Constraint("Perpendicular", 34, 35))
sketch4.addConstraint(Sketcher.Constraint("Horizontal", 1, 2, 4, 2))
sketch4.addConstraint(Sketcher.Constraint("Horizontal", 3, 2, 6, 2))
sketch4.addConstraint(Sketcher.Constraint("Vertical", 3, 2, 8, 2))
sketch4.addConstraint(Sketcher.Constraint("Vertical", 2, 2, 9, 2))
sketch4.addConstraint(Sketcher.Constraint("Equal", 3, 5))
sketch4.addConstraint(Sketcher.Constraint("Equal", 43, 0))
sketch4.addConstraint(Sketcher.Constraint("Equal", 6, 8))
sketch4.addConstraint(Sketcher.Constraint("Equal", 12, 13))
sketch4.addConstraint(Sketcher.Constraint("Equal", 31, 32))
sketch4.addConstraint(Sketcher.Constraint("Equal", 32, 33))
sketch4.addConstraint(Sketcher.Constraint("Angle", 12, Q("-30.000002 deg")))
sketch4.addConstraint(Sketcher.Constraint("DistanceY", 0, 2, 8, 2, Q("4.335 in")))
sketch4.addConstraint(Sketcher.Constraint("DistanceX", 1, 1, 1, 2, Q("7.5 mm")))
sketch4.addConstraint(Sketcher.Constraint("DistanceX", 4, 2, -1, 1, Q("2.6475 in")))
sketch4.addConstraint(Sketcher.Constraint("DistanceX", 12, 2, 16, 2, Q("2.6475 in")))
sketch4.addConstraint(Sketcher.Constraint("Distance", 12, Q("7.5 mm")))
sketch4.addConstraint(Sketcher.Constraint("DistanceX", 32, 2, 28, 2, Q("57.113751 mm")))
sketch4.addConstraint(Sketcher.Constraint("DistanceY", 12, 2, -1, 1, Q("60.112177 mm")))
sketch4.addConstraint(Sketcher.Constraint("DistanceY", -1, 1, 32, 2, Q("49.931905 mm")))
pocket2 = body.newObject("PartDesign::Pocket", "Pocket001")
pocket2.Profile = sketch4
pocket2.Length = Q("1 in")

doc.recompute()
